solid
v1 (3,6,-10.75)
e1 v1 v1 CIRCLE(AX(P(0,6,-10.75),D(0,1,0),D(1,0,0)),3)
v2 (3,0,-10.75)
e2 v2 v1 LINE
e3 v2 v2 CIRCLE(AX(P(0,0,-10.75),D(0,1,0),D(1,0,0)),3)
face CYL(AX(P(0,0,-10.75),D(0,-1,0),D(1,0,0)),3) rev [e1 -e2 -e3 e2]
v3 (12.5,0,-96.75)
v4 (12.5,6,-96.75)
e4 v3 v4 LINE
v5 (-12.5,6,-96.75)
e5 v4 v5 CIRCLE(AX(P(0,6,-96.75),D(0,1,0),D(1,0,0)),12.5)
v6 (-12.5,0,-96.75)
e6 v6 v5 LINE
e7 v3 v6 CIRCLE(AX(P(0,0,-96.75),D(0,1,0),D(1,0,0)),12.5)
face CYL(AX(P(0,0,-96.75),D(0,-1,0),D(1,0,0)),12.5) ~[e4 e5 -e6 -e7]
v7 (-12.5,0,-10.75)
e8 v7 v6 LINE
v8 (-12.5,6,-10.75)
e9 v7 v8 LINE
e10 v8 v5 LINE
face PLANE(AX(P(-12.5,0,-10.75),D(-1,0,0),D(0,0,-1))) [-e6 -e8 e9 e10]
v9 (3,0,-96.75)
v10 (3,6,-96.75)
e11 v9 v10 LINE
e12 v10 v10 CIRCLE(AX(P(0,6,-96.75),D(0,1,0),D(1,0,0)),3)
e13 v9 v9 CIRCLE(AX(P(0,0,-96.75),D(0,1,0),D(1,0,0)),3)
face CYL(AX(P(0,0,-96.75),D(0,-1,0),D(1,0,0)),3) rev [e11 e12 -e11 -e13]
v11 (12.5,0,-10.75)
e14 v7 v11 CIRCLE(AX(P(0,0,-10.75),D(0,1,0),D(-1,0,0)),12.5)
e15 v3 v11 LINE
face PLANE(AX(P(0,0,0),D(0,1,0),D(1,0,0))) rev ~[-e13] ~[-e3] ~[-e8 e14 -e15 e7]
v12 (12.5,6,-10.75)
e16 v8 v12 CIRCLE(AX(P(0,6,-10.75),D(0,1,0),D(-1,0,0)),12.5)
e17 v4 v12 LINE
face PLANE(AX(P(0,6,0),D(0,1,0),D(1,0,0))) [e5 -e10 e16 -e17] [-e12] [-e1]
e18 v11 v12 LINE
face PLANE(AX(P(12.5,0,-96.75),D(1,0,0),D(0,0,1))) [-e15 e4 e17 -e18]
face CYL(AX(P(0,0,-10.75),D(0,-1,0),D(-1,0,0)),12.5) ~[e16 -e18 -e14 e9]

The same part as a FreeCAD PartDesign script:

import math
import FreeCAD as App
import Part
import Sketcher

V = App.Vector

doc = App.newDocument("Part")
body = doc.addObject("PartDesign::Body", "Body")

sketch1 = body.newObject("Sketcher::SketchObject", "Sketch")
sketch1.AttachmentSupport = (doc.getObject("XZ_Plane"), [""])
sketch1.MapMode = "FlatFace"
sketch1.addGeometry(Part.LineSegment(V(12.5, -10.75, 0), V(12.5, -96.75, 0)), False)
sketch1.addGeometry(Part.ArcOfCircle(Part.Circle(V(0, -96.75, 0), V(0, 0, 1), 12.5), math.radians(180), math.radians(360)), False)
sketch1.addGeometry(Part.LineSegment(V(-12.5, -96.75, 0), V(-12.5, -10.75, 0)), False)
sketch1.addGeometry(Part.ArcOfCircle(Part.Circle(V(0, -10.75, 0), V(0, 0, 1), 12.5), math.radians(0), math.radians(180)), False)
sketch1.addGeometry(Part.Circle(V(0, -10.75, 0), V(0, 0, 1), 3), False)
sketch1.addGeometry(Part.Circle(V(0, -96.75, 0), V(0, 0, 1), 3), False)
sketch1.addConstraint(Sketcher.Constraint("Tangent", 0, 2, 1, 2))
sketch1.addConstraint(Sketcher.Constraint("Tangent", 1, 1, 2, 1))
sketch1.addConstraint(Sketcher.Constraint("Tangent", 2, 2, 3, 2))
sketch1.addConstraint(Sketcher.Constraint("Tangent", 3, 1, 0, 1))
sketch1.addConstraint(Sketcher.Constraint("Vertical", 0))
sketch1.addConstraint(Sketcher.Constraint("Vertical", 2))
sketch1.addConstraint(Sketcher.Constraint("Coincident", 4, 3, 3, 3))
sketch1.addConstraint(Sketcher.Constraint("Coincident", 5, 3, 1, 3))
sketch1.addConstraint(Sketcher.Constraint("Equal", 4, 5))
sketch1.addConstraint(Sketcher.Constraint("PointOnObject", 1, 3, -2))
sketch1.addConstraint(Sketcher.Constraint("Diameter", 4, 6.0))
sketch1.addConstraint(Sketcher.Constraint("Radius", 1, 12.5))
sketch1.addConstraint(Sketcher.Constraint("DistanceY", 0, 2, 0, 1, 86.0))
sketch1.addConstraint(Sketcher.Constraint("DistanceY", 1, 3, -1, 1, 96.75))
pad1 = body.newObject("PartDesign::Pad", "Pad")
pad1.Profile = sketch1
pad1.Length = 6
pad1.Reversed = True

doc.recompute()
